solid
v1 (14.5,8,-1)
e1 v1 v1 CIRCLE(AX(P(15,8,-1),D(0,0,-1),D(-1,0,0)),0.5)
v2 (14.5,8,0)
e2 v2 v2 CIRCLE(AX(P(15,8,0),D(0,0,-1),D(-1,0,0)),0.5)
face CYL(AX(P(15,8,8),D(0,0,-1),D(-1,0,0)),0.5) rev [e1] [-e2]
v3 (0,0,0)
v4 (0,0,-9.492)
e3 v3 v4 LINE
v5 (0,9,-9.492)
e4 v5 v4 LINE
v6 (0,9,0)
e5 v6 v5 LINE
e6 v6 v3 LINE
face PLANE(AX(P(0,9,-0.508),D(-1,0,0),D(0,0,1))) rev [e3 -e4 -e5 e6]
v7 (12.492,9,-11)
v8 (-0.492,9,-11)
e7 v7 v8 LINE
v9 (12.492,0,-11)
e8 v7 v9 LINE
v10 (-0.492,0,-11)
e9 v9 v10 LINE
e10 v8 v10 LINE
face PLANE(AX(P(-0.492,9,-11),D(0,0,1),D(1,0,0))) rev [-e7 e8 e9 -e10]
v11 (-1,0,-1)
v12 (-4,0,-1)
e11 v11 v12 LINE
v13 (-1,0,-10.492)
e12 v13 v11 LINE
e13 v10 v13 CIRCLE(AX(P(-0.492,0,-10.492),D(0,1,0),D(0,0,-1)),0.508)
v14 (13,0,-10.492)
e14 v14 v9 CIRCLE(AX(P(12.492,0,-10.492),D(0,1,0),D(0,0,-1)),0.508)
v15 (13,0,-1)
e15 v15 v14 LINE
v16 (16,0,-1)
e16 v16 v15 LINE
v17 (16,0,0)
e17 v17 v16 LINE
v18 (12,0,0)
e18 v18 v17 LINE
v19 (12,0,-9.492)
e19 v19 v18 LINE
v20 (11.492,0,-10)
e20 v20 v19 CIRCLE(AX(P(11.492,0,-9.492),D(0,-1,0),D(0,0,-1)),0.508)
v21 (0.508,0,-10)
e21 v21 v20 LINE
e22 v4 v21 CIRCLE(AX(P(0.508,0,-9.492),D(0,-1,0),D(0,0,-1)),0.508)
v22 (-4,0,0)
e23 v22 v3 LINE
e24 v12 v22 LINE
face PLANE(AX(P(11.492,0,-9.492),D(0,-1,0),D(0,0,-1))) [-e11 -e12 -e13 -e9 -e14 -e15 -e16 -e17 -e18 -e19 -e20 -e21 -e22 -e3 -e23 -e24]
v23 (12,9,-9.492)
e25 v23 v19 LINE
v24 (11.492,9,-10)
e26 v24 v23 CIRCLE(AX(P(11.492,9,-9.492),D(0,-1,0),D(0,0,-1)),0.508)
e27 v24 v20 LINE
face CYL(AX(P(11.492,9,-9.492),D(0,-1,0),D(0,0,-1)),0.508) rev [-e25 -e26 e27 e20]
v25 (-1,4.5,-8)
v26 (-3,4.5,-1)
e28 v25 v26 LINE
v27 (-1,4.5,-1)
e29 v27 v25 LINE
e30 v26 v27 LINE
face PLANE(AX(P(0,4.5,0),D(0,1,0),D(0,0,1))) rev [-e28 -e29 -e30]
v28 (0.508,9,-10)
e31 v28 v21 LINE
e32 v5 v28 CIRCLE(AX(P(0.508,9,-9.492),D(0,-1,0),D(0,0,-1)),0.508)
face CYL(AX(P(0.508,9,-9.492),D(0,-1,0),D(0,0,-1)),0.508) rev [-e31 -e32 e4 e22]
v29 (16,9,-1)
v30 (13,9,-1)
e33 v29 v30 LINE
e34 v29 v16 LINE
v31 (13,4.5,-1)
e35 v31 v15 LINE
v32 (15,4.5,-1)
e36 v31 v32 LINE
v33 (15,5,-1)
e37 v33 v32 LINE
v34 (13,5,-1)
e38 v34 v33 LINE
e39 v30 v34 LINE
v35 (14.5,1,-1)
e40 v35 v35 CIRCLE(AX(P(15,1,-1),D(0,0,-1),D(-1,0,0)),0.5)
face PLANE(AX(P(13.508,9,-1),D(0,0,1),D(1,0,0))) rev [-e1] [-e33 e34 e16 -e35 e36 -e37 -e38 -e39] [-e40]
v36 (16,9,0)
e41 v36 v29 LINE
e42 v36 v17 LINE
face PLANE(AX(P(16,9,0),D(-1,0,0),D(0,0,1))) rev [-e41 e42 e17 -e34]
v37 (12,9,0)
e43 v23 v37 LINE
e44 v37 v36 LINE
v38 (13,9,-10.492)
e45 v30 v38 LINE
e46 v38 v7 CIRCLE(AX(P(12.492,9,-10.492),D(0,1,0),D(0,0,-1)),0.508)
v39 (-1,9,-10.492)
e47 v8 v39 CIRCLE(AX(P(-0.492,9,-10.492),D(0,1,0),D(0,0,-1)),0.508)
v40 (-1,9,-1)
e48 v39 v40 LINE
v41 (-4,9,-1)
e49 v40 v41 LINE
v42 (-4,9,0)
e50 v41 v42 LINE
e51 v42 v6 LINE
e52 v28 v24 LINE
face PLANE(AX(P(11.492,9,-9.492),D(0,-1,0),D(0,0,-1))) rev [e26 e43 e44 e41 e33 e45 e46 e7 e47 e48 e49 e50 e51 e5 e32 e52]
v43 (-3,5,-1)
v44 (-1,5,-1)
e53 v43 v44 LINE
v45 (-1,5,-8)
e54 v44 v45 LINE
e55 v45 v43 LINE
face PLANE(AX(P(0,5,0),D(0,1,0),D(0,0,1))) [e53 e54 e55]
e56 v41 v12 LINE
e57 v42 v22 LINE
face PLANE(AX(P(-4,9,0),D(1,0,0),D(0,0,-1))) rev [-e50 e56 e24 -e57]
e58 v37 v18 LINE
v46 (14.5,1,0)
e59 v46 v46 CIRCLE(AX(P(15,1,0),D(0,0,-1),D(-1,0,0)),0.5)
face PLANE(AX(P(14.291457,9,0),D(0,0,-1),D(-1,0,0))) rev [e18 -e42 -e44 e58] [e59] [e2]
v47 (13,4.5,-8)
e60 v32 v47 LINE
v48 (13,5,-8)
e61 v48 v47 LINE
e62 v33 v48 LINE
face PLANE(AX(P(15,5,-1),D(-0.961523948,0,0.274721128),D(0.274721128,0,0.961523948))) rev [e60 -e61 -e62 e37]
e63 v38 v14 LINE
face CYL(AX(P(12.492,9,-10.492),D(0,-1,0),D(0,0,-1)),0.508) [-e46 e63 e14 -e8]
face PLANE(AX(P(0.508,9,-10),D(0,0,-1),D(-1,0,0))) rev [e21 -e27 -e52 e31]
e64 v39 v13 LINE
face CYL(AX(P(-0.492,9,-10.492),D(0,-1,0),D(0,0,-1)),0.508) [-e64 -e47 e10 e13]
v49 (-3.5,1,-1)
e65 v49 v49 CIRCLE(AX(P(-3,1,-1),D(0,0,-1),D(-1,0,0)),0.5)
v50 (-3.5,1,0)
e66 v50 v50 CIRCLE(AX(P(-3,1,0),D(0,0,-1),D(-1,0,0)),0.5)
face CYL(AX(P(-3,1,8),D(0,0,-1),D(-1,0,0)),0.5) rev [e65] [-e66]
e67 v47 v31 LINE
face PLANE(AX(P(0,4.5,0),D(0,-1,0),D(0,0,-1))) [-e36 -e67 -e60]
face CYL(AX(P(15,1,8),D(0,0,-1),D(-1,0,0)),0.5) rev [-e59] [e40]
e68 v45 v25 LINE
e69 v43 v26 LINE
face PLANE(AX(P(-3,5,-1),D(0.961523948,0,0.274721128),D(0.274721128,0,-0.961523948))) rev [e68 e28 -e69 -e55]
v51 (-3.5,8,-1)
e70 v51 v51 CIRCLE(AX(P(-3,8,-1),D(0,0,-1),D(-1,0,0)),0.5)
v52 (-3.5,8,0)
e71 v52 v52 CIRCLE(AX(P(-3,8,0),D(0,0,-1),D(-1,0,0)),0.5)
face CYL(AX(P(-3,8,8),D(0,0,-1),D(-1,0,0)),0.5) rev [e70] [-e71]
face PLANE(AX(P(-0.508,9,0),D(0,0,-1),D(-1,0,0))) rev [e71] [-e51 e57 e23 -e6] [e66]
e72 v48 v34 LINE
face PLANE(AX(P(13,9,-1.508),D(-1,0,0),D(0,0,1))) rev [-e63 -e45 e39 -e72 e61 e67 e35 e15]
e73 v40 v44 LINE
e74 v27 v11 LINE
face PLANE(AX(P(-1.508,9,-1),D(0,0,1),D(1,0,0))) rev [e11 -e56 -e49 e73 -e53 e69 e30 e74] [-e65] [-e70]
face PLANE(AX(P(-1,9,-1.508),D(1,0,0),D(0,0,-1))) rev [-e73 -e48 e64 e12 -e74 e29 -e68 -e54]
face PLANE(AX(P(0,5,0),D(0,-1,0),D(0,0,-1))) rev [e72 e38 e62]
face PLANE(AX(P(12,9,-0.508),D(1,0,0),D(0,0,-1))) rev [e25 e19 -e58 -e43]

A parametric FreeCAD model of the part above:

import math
import FreeCAD as App
import Part
import Sketcher

V = App.Vector

doc = App.newDocument("Part")
body = doc.addObject("PartDesign::Body", "Body")

# Sketch on XZ plane
sketch1 = body.newObject("Sketcher::SketchObject", "Sketch")
sketch1.AttachmentSupport = (doc.getObject("XZ_Plane"), [""])
sketch1.MapMode = "FlatFace"
sketch1.addGeometry([
    Part.LineSegment(V(16, 0, 0), V(16, -1, 0)),  # 0
    Part.LineSegment(V(16, -1, 0), V(13, -1, 0)),  # 1
    Part.LineSegment(V(13, -1, 0), V(13, -10.5, 0)),  # 2
    Part.ArcOfCircle(Part.Circle(V(12.5, -10.5, 0), V(0, 0, 1), 0.5), math.radians(-90), math.radians(0)),  # 3
    Part.LineSegment(V(12.5, -11, 0), V(-0.5, -11, 0)),  # 4
    Part.ArcOfCircle(Part.Circle(V(-0.5, -10.5, 0), V(0, 0, 1), 0.5), math.radians(180), math.radians(270)),  # 5
    Part.LineSegment(V(-1, -10.5, 0), V(-1, -1, 0)),  # 6
    Part.LineSegment(V(-1, -1, 0), V(-4, -1, 0)),  # 7
    Part.LineSegment(V(-4, -1, 0), V(-4, 0, 0)),  # 8
    Part.LineSegment(V(-4, 0, 0), V(0, 0, 0)),  # 9
    Part.LineSegment(V(0, 0, 0), V(0, -9.5, 0)),  # 10
    Part.ArcOfCircle(Part.Circle(V(0.5, -9.5, 0), V(0, 0, 1), 0.5), math.radians(180), math.radians(270)),  # 11
    Part.LineSegment(V(0.5, -10, 0), V(11.5, -10, 0)),  # 12
    Part.ArcOfCircle(Part.Circle(V(11.5, -9.5, 0), V(0, 0, 1), 0.5), math.radians(-90), math.radians(0)),  # 13
    Part.LineSegment(V(12, -9.5, 0), V(12, 0, 0)),  # 14
    Part.LineSegment(V(12, 0, 0), V(16, 0, 0)),  # 15
], False)
sketch1.addConstraint([
    Sketcher.Constraint("Coincident", 0, 2, 1, 1),
    Sketcher.Constraint("Coincident", 1, 2, 2, 1),
    Sketcher.Constraint("Tangent", 2, 2, 3, 2),
    Sketcher.Constraint("Tangent", 3, 1, 4, 1),
    Sketcher.Constraint("Tangent", 4, 2, 5, 2),
    Sketcher.Constraint("Tangent", 5, 1, 6, 1),
    Sketcher.Constraint("Coincident", 6, 2, 7, 1),
    Sketcher.Constraint("Coincident", 7, 2, 8, 1),
    Sketcher.Constraint("Coincident", 8, 2, 9, 1),
    Sketcher.Constraint("Coincident", 9, 2, 10, 1),
    Sketcher.Constraint("Tangent", 10, 2, 11, 1),
    Sketcher.Constraint("Tangent", 11, 2, 12, 1),
    Sketcher.Constraint("Tangent", 12, 2, 13, 1),
    Sketcher.Constraint("Tangent", 13, 2, 14, 1),
    Sketcher.Constraint("Coincident", 14, 2, 15, 1),
    Sketcher.Constraint("Coincident", 15, 2, 0, 1),
    Sketcher.Constraint("Vertical", 0),
    Sketcher.Constraint("Horizontal", 1),
    Sketcher.Constraint("Vertical", 2),
    Sketcher.Constraint("Horizontal", 4),
    Sketcher.Constraint("Vertical", 6),
    Sketcher.Constraint("Horizontal", 7),
    Sketcher.Constraint("Vertical", 8),
    Sketcher.Constraint("Horizontal", 9),
    Sketcher.Constraint("Vertical", 10),
    Sketcher.Constraint("Horizontal", 12),
    Sketcher.Constraint("Vertical", 14),
    Sketcher.Constraint("Horizontal", 15),
    Sketcher.Constraint("Coincident", 9, 2, -1, 1),
    Sketcher.Constraint("Equal", 3, 5),
    Sketcher.Constraint("Equal", 5, 11),
    Sketcher.Constraint("Equal", 11, 13),
    Sketcher.Constraint("PointOnObject", 14, 2, -1),
    Sketcher.Constraint("Horizontal", 1, 2, 6, 2),
    Sketcher.Constraint("Equal", 1, 7),
    Sketcher.Constraint("Equal", 9, 15),
    Sketcher.Constraint("Equal", 6, 10),
    Sketcher.Constraint("DistanceX", 1, 2, 1, 1, 3.0),
    Sketcher.Constraint("DistanceX", 9, 1, 9, 2, 4.0),
    Sketcher.Constraint("DistanceY", 0, 2, 0, 1, 1.0),
    Sketcher.Constraint("DistanceX", -1, 1, 0, 2, 16.0),
    Sketcher.Constraint("DistanceY", 3, 1, -1, 1, 11.0),
    Sketcher.Constraint("Radius", 3, 0.508),
])
pad1 = body.newObject("PartDesign::Pad", "Pad")
pad1.Profile = sketch1
pad1.Length = 9
pad1.Reversed = True

# Sketch on XY plane
sketch2 = body.newObject("Sketcher::SketchObject", "Sketch001")
sketch2.AttachmentSupport = (doc.getObject("XY_Plane"), [""])
sketch2.MapMode = "FlatFace"
sketch2.AttachmentOffset = App.Placement(V(0, 0, -1), App.Rotation())
sketch2.addGeometry([
    Part.Circle(V(-3, 1, 0), V(0, 0, 1), 0.5),
    Part.Circle(V(-3, 8, 0), V(0, 0, 1), 0.5),
    Part.Circle(V(15, 1, 0), V(0, 0, 1), 0.5),
    Part.Circle(V(15, 8, 0), V(0, 0, 1), 0.5),
], False)
sketch2.addConstraint([
    Sketcher.Constraint("Equal", 0, 1),
    Sketcher.Constraint("Equal", 1, 2),
    Sketcher.Constraint("Equal", 2, 3),
    Sketcher.Constraint("Horizontal", 0, 3, 2, 3),
    Sketcher.Constraint("Horizontal", 1, 3, 3, 3),
    Sketcher.Constraint("Vertical", 0, 3, 1, 3),
    Sketcher.Constraint("Vertical", 2, 3, 3, 3),
    Sketcher.Constraint("Diameter", 0, 1.0),
    Sketcher.Constraint("DistanceX", 0, 3, -1, 1, 3.0),
    Sketcher.Constraint("DistanceY", -1, 1, 0, 3, 1.0),
    Sketcher.Constraint("DistanceY", -1, 1, 1, 3, 8.0),
    Sketcher.Constraint("DistanceX", -1, 1, 2, 3, 15.0),
])
pocket1 = body.newObject("PartDesign::Pocket", "Pocket")
pocket1.Profile = sketch2
pocket1.Length = 9
pocket1.Reversed = True

# Sketch on XZ plane
sketch3 = body.newObject("Sketcher::SketchObject", "Sketch002")
sketch3.AttachmentSupport = (doc.getObject("XZ_Plane"), [""])
sketch3.MapMode = "FlatFace"
sketch3.AttachmentOffset = App.Placement(V(0, 0, -4.5), App.Rotation())
sketch3.addGeometry([
    Part.LineSegment(V(-1, -8, 0), V(-3, -1, 0)),  # 0
    Part.LineSegment(V(-3, -1, 0), V(-1, -1, 0)),  # 1
    Part.LineSegment(V(-1, -1, 0), V(-1, -8, 0)),  # 2
    Part.LineSegment(V(13, -8, 0), V(13, -1, 0)),  # 3
    Part.LineSegment(V(13, -1, 0), V(15, -1, 0)),  # 4
    Part.LineSegment(V(15, -1, 0), V(13, -8, 0)),  # 5
], False)
sketch3.addConstraint([
    Sketcher.Constraint("Coincident", 0, 2, 1, 1),
    Sketcher.Constraint("Coincident", 1, 2, 2, 1),
    Sketcher.Constraint("Coincident", 2, 2, 0, 1),
    Sketcher.Constraint("Coincident", 3, 2, 4, 1),
    Sketcher.Constraint("Coincident", 4, 2, 5, 1),
    Sketcher.Constraint("Coincident", 5, 2, 3, 1),
    Sketcher.Constraint("Horizontal", 1),
    Sketcher.Constraint("Vertical", 2),
    Sketcher.Constraint("Vertical", 3),
    Sketcher.Constraint("Horizontal", 4),
    Sketcher.Constraint("Horizontal", 1, 2, 3, 2),
    Sketcher.Constraint("Horizontal", 2, 2, 5, 2),
    Sketcher.Constraint("Equal", 1, 4),
    Sketcher.Constraint("DistanceX", 1, 1, 1, 2, 2.0),
    Sketcher.Constraint("DistanceY", 2, 2, 2, 1, 7.0),
    Sketcher.Constraint("DistanceX", 0, 2, -1, 1, 3.0),
    Sketcher.Constraint("DistanceY", 0, 2, -1, 1, 1.0),
    Sketcher.Constraint("DistanceX", -1, 1, 3, 2, 13.0),
])
pad2 = body.newObject("PartDesign::Pad", "Pad001")
pad2.Profile = sketch3
pad2.Length = 0.5
pad2.Reversed = True

doc.recompute()
